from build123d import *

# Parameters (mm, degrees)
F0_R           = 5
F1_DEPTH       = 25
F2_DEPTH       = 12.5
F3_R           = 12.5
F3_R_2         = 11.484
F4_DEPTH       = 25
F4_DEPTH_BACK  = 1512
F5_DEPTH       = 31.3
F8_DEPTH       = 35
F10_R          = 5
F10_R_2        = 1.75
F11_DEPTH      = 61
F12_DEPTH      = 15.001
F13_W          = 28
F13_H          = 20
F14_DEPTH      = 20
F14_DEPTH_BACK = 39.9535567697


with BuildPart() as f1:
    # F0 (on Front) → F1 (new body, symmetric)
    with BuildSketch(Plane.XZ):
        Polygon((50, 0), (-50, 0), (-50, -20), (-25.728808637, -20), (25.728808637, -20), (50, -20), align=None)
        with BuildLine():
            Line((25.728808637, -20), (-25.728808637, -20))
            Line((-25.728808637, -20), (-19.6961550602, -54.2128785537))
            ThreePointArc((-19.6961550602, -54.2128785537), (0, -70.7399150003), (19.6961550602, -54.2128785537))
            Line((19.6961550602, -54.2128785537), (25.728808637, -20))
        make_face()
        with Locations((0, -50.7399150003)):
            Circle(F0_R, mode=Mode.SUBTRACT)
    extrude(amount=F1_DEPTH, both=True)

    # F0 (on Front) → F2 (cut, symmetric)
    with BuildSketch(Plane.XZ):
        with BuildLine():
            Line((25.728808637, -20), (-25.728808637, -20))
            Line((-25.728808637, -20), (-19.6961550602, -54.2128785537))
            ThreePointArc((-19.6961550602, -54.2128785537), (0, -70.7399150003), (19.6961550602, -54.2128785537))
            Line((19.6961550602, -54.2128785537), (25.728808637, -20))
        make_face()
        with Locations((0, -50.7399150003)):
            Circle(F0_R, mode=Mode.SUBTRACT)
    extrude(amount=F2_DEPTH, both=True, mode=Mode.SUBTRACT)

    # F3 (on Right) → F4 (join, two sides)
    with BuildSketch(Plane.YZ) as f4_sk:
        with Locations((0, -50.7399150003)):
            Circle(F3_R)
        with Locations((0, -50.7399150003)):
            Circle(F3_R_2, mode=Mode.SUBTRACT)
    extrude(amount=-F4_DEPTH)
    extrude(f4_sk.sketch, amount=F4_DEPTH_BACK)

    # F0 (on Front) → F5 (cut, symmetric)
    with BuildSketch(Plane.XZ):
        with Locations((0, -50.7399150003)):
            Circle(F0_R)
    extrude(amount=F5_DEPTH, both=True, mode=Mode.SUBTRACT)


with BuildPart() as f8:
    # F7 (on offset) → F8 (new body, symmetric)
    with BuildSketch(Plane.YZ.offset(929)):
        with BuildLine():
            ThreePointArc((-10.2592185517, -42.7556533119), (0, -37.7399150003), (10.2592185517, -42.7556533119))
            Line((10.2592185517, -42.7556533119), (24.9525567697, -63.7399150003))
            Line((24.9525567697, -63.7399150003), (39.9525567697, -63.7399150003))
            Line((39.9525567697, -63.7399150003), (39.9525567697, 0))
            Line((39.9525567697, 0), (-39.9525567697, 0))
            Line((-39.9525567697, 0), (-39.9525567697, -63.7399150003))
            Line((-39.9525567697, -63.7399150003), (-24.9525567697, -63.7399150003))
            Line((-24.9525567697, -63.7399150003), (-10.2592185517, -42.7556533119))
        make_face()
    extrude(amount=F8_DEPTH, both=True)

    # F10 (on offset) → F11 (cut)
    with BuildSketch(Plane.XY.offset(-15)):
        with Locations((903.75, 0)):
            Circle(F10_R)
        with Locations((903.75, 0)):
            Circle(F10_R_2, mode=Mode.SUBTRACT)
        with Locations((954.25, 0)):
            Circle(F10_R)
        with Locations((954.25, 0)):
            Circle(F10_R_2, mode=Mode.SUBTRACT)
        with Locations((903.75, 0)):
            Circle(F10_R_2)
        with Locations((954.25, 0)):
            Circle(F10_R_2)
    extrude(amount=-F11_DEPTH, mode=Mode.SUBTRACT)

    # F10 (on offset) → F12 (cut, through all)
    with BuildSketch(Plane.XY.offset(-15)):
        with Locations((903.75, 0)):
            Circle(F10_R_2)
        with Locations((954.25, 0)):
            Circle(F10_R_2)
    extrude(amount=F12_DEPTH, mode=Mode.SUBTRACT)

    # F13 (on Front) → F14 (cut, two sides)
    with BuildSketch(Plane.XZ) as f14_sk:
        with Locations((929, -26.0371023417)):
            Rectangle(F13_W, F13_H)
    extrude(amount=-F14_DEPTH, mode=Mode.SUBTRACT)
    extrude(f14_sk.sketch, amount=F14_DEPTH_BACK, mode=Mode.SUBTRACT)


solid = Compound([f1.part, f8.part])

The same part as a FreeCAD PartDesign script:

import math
import FreeCAD as App
import Part
import Sketcher
from FreeCAD import Vector
Q = App.Units.Quantity

doc = App.newDocument("Part")
body = doc.addObject("PartDesign::Body", "Body")
body.AllowCompound = True

sketch1 = body.newObject("Sketcher::SketchObject", "Sketch")
sketch1.AttachmentSupport = (doc.getObject("XZ_Plane"), [""])
sketch1.MapMode = "FlatFace"
sketch1.addGeometry([
    Part.LineSegment(Vector(50, 0, 0), Vector(-50, 0, 0)),
    Part.LineSegment(Vector(-50, 0, 0), Vector(-50, -20, 0)),
    Part.LineSegment(Vector(-50, -20, 0), Vector(-25.728809, -20, 0)),
    Part.LineSegment(Vector(-25.728809, -20, 0), Vector(-19.696155, -54.212879, 0)),
    Part.ArcOfCircle(Part.Circle(Vector(0, -50.739915, 0), Vector(0, 0, 1), 20), math.radians(-170), math.radians(-10)),
    Part.LineSegment(Vector(19.696155, -54.212879, 0), Vector(25.728809, -20, 0)),
    Part.LineSegment(Vector(25.728809, -20, 0), Vector(50, -20, 0)),
    Part.LineSegment(Vector(50, -20, 0), Vector(50, 0, 0)),
    Part.Circle(Vector(0, -50.739915, 0), Vector(0, 0, 1), 5),
], False)
sketch1.addConstraint([
    Sketcher.Constraint("Coincident", 0, 2, 1, 1),
    Sketcher.Constraint("Coincident", 1, 2, 2, 1),
    Sketcher.Constraint("Coincident", 2, 2, 3, 1),
    Sketcher.Constraint("Tangent", 3, 2, 4, 1),
    Sketcher.Constraint("Tangent", 4, 2, 5, 1),
    Sketcher.Constraint("Coincident", 5, 2, 6, 1),
    Sketcher.Constraint("Coincident", 6, 2, 7, 1),
    Sketcher.Constraint("Coincident", 7, 2, 0, 1),
    Sketcher.Constraint("Horizontal", 0),
    Sketcher.Constraint("Vertical", 1),
    Sketcher.Constraint("Horizontal", 2),
    Sketcher.Constraint("Horizontal", 6),
    Sketcher.Constraint("Vertical", 7),
    Sketcher.Constraint("Coincident", 8, 3, 4, 3),
    Sketcher.Constraint("Symmetric", 0, 2, 7, 2, -1, 1),
    Sketcher.Constraint("Symmetric", 3, 2, 4, 2, -2),
    Sketcher.Constraint("Horizontal", 2, 2, 5, 2),
    Sketcher.Constraint("Diameter", 8, Q("10 mm")),
    Sketcher.Constraint("Radius", 4, Q("20 mm")),
    Sketcher.Constraint("DistanceX", 0, 2, 0, 1, Q("100 mm")),
    Sketcher.Constraint("DistanceY", 1, 2, 1, 1, Q("20 mm")),
    Sketcher.Constraint("Angle", 3, Q("-80 deg")),
    Sketcher.Constraint("DistanceX", 2, 1, 2, 2, Q("24.271191 mm")),
])
pad1 = body.newObject("PartDesign::Pad", "Pad")
pad1.Profile = sketch1
pad1.Length = 50
pad1.Midplane = True

sketch2 = body.newObject("Sketcher::SketchObject", "Sketch001")
sketch2.AttachmentSupport = (doc.getObject("XZ_Plane"), [""])
sketch2.MapMode = "FlatFace"
sketch2.addGeometry([
    Part.LineSegment(Vector(25.728809, -20, 0), Vector(-25.728809, -20, 0)),
    Part.LineSegment(Vector(-25.728809, -20, 0), Vector(-19.696155, -54.212879, 0)),
    Part.ArcOfCircle(Part.Circle(Vector(0, -50.739915, 0), Vector(0, 0, 1), 20), math.radians(-170), math.radians(-10)),
    Part.LineSegment(Vector(19.696155, -54.212879, 0), Vector(25.728809, -20, 0)),
    Part.Circle(Vector(0, -50.739915, 0), Vector(0, 0, 1), 5),
], False)
sketch2.addConstraint([
    Sketcher.Constraint("Coincident", 0, 2, 1, 1),
    Sketcher.Constraint("Tangent", 1, 2, 2, 1),
    Sketcher.Constraint("Tangent", 2, 2, 3, 1),
    Sketcher.Constraint("Coincident", 3, 2, 0, 1),
    Sketcher.Constraint("Horizontal", 0),
    Sketcher.Constraint("Coincident", 4, 3, 2, 3),
    Sketcher.Constraint("Symmetric", 1, 2, 2, 2, -2),
    Sketcher.Constraint("Diameter", 4, Q("10 mm")),
    Sketcher.Constraint("Radius", 2, Q("20 mm")),
    Sketcher.Constraint("Angle", 1, Q("-80 deg")),
    Sketcher.Constraint("DistanceY", 0, 2, -1, 1, Q("20 mm")),
    Sketcher.Constraint("DistanceX", 0, 2, 0, 1, Q("51.457617 mm")),
])
pocket1 = body.newObject("PartDesign::Pocket", "Pocket")
pocket1.Profile = sketch2
pocket1.Length = 25
pocket1.Midplane = True

sketch3 = body.newObject("Sketcher::SketchObject", "Sketch002")
sketch3.AttachmentSupport = (doc.getObject("YZ_Plane"), [""])
sketch3.MapMode = "FlatFace"
sketch3.addGeometry([
    Part.Circle(Vector(0, -50.739915, 0), Vector(0, 0, 1), 12.5),
    Part.Circle(Vector(0, -50.739915, 0), Vector(0, 0, 1), 11.484),
], False)
sketch3.addConstraint([
    Sketcher.Constraint("Coincident", 1, 3, 0, 3),
    Sketcher.Constraint("PointOnObject", 0, 3, -2),
    Sketcher.Constraint("Diameter", 0, Q("25 mm")),
    Sketcher.Constraint("Diameter", 1, Q("22.968 mm")),
    Sketcher.Constraint("DistanceY", 0, 3, -1, 1, Q("50.739915 mm")),
])
pad2 = body.newObject("PartDesign::Pad", "Pad001")
pad2.Profile = sketch3
pad2.Type = "TwoLengths"
pad2.Length = 25
pad2.Length2 = 1512
pad2.Reversed = True

sketch4 = body.newObject("Sketcher::SketchObject", "Sketch003")
sketch4.AttachmentSupport = (doc.getObject("XZ_Plane"), [""])
sketch4.MapMode = "FlatFace"
sketch4.addGeometry(Part.Circle(Vector(0, -50.739915, 0), Vector(0, 0, 1), 5), False)
sketch4.addConstraint([
    Sketcher.Constraint("PointOnObject", 0, 3, -2),
    Sketcher.Constraint("Diameter", 0, Q("10 mm")),
    Sketcher.Constraint("DistanceY", 0, 3, -1, 1, Q("50.739915 mm")),
])
pocket2 = body.newObject("PartDesign::Pocket", "Pocket001")
pocket2.Profile = sketch4
pocket2.Length = 62.6
pocket2.Midplane = True
body2 = doc.addObject("PartDesign::Body", "Body001")

sketch5 = body2.newObject("Sketcher::SketchObject", "Sketch004")
sketch5.AttachmentSupport = (doc.getObject("YZ_Plane001"), [""])
sketch5.MapMode = "FlatFace"
sketch5.AttachmentOffset = App.Placement(Vector(0, 0, 929), App.Rotation())
sketch5.addGeometry([
    Part.ArcOfCircle(Part.Circle(Vector(0, -50.739915, 0), Vector(0, 0, 1), 13), math.radians(37.891924), math.radians(142.108076)),
    Part.LineSegment(Vector(10.259219, -42.755653, 0), Vector(24.952557, -63.739915, 0)),
    Part.LineSegment(Vector(24.952557, -63.739915, 0), Vector(39.952557, -63.739915, 0)),
    Part.LineSegment(Vector(39.952557, -63.739915, 0), Vector(39.952557, 0, 0)),
    Part.LineSegment(Vector(39.952557, 0, 0), Vector(-39.952557, 0, 0)),
    Part.LineSegment(Vector(-39.952557, 0, 0), Vector(-39.952557, -63.739915, 0)),
    Part.LineSegment(Vector(-39.952557, -63.739915, 0), Vector(-24.952557, -63.739915, 0)),
    Part.LineSegment(Vector(-24.952557, -63.739915, 0), Vector(-10.259219, -42.755653, 0)),
], False)
sketch5.addConstraint([
    Sketcher.Constraint("Coincident", 0, 1, 1, 1),
    Sketcher.Constraint("Coincident", 1, 2, 2, 1),
    Sketcher.Constraint("Coincident", 2, 2, 3, 1),
    Sketcher.Constraint("Coincident", 3, 2, 4, 1),
    Sketcher.Constraint("Coincident", 4, 2, 5, 1),
    Sketcher.Constraint("Coincident", 5, 2, 6, 1),
    Sketcher.Constraint("Coincident", 6, 2, 7, 1),
    Sketcher.Constraint("Coincident", 7, 2, 0, 2),
    Sketcher.Constraint("Horizontal", 2),
    Sketcher.Constraint("Vertical", 3),
    Sketcher.Constraint("Horizontal", 4),
    Sketcher.Constraint("Vertical", 5),
    Sketcher.Constraint("Horizontal", 6),
    Sketcher.Constraint("Symmetric", 3, 2, 4, 2, -1, 1),
    Sketcher.Constraint("Symmetric", 1, 2, 6, 2, -2),
    Sketcher.Constraint("Symmetric", 0, 1, 7, 2, -2),
    Sketcher.Constraint("Radius", 0, Q("13 mm")),
    Sketcher.Constraint("DistanceX", 2, 1, 2, 2, Q("15 mm")),
    Sketcher.Constraint("Angle", 1, Q("-55 deg")),
    Sketcher.Constraint("DistanceY", 1, 2, 0, 3, Q("13 mm")),
    Sketcher.Constraint("DistanceX", 4, 2, 4, 1, Q("79.905114 mm")),
    Sketcher.Constraint("DistanceY", 3, 1, 3, 2, Q("63.739915 mm")),
])
pad3 = body2.newObject("PartDesign::Pad", "Pad002")
pad3.Profile = sketch5
pad3.Length = 70
pad3.Midplane = True

sketch6 = body2.newObject("Sketcher::SketchObject", "Sketch005")
sketch6.AttachmentSupport = (doc.getObject("XY_Plane001"), [""])
sketch6.MapMode = "FlatFace"
sketch6.AttachmentOffset = App.Placement(Vector(0, 0, -15), App.Rotation())
sketch6.addGeometry([
    Part.Circle(Vector(903.75, 0, 0), Vector(0, 0, 1), 5),
    Part.Circle(Vector(954.25, 0, 0), Vector(0, 0, 1), 5),
], False)
sketch6.addConstraint([
    Sketcher.Constraint("Equal", 0, 1),
    Sketcher.Constraint("PointOnObject", 0, 3, -1),
    Sketcher.Constraint("PointOnObject", 1, 3, -1),
    Sketcher.Constraint("Diameter", 0, Q("10 mm")),
    Sketcher.Constraint("DistanceX", 0, 3, 1, 3, Q("50.5 mm")),
    Sketcher.Constraint("DistanceX", -1, 1, 0, 3, Q("903.75 mm")),
])
pocket3 = body2.newObject("PartDesign::Pocket", "Pocket002")
pocket3.Profile = sketch6
pocket3.Length = 61

sketch7 = body2.newObject("Sketcher::SketchObject", "Sketch006")
sketch7.AttachmentSupport = (doc.getObject("XY_Plane001"), [""])
sketch7.MapMode = "FlatFace"
sketch7.AttachmentOffset = App.Placement(Vector(0, 0, -15), App.Rotation())
sketch7.addGeometry([
    Part.Circle(Vector(903.75, 0, 0), Vector(0, 0, 1), 1.75),
    Part.Circle(Vector(954.25, 0, 0), Vector(0, 0, 1), 1.75),
], False)
sketch7.addConstraint([
    Sketcher.Constraint("Equal", 0, 1),
    Sketcher.Constraint("PointOnObject", 0, 3, -1),
    Sketcher.Constraint("PointOnObject", 1, 3, -1),
    Sketcher.Constraint("Diameter", 0, Q("3.5 mm")),
    Sketcher.Constraint("DistanceX", 0, 3, 1, 3, Q("50.5 mm")),
    Sketcher.Constraint("DistanceX", -1, 1, 0, 3, Q("903.75 mm")),
])
pocket4 = body2.newObject("PartDesign::Pocket", "Pocket003")
pocket4.Profile = sketch7
pocket4.Type = "ThroughAll"
pocket4.Reversed = True

sketch8 = body2.newObject("Sketcher::SketchObject", "Sketch007")
sketch8.AttachmentSupport = (doc.getObject("XZ_Plane001"), [""])
sketch8.MapMode = "FlatFace"
sketch8.addGeometry([
    Part.LineSegment(Vector(915, -16.037102, 0), Vector(915, -36.037102, 0)),
    Part.LineSegment(Vector(915, -36.037102, 0), Vector(943, -36.037102, 0)),
    Part.LineSegment(Vector(943, -36.037102, 0), Vector(943, -16.037102, 0)),
    Part.LineSegment(Vector(943, -16.037102, 0), Vector(915, -16.037102, 0)),
], False)
sketch8.addConstraint([
    Sketcher.Constraint("Coincident", 0, 2, 1, 1),
    Sketcher.Constraint("Coincident", 1, 2, 2, 1),
    Sketcher.Constraint("Coincident", 2, 2, 3, 1),
    Sketcher.Constraint("Coincident", 3, 2, 0, 1),
    Sketcher.Constraint("Vertical", 0),
    Sketcher.Constraint("Horizontal", 1),
    Sketcher.Constraint("Vertical", 2),
    Sketcher.Constraint("Horizontal", 3),
    Sketcher.Constraint("DistanceX", 1, 1, 1, 2, Q("28 mm")),
    Sketcher.Constraint("DistanceY", 0, 2, 0, 1, Q("20 mm")),
    Sketcher.Constraint("DistanceX", -1, 1, 0, 2, Q("915 mm")),
    Sketcher.Constraint("DistanceY", 0, 2, -1, 1, Q("36.037102 mm")),
])
pocket5 = body2.newObject("PartDesign::Pocket", "Pocket004")
pocket5.Profile = sketch8
pocket5.Type = "TwoLengths"
pocket5.Length = 20
pocket5.Length2 = 39.953557

doc.recompute()
